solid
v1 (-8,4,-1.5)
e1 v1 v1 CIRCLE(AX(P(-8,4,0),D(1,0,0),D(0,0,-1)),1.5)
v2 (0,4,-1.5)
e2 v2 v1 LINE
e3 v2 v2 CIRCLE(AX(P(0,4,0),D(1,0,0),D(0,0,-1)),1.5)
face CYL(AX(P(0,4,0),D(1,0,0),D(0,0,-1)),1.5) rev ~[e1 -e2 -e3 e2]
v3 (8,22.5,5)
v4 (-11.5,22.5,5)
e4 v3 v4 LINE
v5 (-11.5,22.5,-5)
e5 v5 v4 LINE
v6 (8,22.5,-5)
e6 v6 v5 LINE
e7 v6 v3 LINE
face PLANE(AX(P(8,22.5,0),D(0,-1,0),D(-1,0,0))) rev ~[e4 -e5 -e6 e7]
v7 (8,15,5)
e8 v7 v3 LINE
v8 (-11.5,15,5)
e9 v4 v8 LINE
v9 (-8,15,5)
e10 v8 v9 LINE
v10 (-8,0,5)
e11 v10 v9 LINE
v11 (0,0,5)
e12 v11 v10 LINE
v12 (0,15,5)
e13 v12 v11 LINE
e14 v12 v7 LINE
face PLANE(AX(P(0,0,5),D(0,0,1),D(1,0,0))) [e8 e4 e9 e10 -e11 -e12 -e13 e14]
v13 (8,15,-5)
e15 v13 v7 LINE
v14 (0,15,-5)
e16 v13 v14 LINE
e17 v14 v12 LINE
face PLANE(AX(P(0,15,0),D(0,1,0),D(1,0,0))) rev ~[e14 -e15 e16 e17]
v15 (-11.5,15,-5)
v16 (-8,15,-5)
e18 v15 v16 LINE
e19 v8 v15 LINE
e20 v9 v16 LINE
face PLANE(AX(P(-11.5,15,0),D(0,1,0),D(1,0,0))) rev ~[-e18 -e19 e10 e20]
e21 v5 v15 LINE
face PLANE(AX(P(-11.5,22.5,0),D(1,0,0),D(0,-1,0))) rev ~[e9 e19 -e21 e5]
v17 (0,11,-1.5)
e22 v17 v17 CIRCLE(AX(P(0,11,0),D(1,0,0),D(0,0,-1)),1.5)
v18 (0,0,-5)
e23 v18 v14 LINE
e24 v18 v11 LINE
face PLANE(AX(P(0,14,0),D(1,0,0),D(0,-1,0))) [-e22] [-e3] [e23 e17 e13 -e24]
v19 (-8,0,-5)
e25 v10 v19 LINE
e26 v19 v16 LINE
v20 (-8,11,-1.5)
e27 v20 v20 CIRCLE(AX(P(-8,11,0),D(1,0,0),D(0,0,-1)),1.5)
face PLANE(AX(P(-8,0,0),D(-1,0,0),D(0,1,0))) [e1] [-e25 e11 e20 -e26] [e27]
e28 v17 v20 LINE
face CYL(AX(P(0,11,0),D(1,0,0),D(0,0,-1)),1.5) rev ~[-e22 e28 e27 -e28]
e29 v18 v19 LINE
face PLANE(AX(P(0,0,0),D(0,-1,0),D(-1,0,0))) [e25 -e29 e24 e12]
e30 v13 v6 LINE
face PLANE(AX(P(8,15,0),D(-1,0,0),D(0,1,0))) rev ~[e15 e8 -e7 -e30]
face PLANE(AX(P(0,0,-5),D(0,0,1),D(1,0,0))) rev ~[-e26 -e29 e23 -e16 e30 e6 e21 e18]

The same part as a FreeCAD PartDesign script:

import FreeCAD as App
import Part
import Sketcher

V = App.Vector

doc = App.newDocument("Part")
body = doc.addObject("PartDesign::Body", "Body")

# Sketch on XY plane
sketch1 = body.newObject("Sketcher::SketchObject", "Sketch")
sketch1.AttachmentSupport = (doc.getObject("XY_Plane"), [""])
sketch1.MapMode = "FlatFace"
sketch1.addGeometry([
    Part.LineSegment(V(-8, 0, 0), V(0, 0, 0)),  # 0
    Part.LineSegment(V(0, 0, 0), V(0, 15, 0)),  # 1
    Part.LineSegment(V(0, 15, 0), V(8, 15, 0)),  # 2
    Part.LineSegment(V(8, 15, 0), V(8, 22.5, 0)),  # 3
    Part.LineSegment(V(8, 22.5, 0), V(-11.5, 22.5, 0)),  # 4
    Part.LineSegment(V(-11.5, 22.5, 0), V(-11.5, 15, 0)),  # 5
    Part.LineSegment(V(-11.5, 15, 0), V(-8, 15, 0)),  # 6
    Part.LineSegment(V(-8, 15, 0), V(-8, 0, 0)),  # 7
], False)
sketch1.addConstraint([
    Sketcher.Constraint("Coincident", 0, 2, 1, 1),
    Sketcher.Constraint("Coincident", 1, 2, 2, 1),
    Sketcher.Constraint("Coincident", 2, 2, 3, 1),
    Sketcher.Constraint("Coincident", 3, 2, 4, 1),
    Sketcher.Constraint("Coincident", 4, 2, 5, 1),
    Sketcher.Constraint("Coincident", 5, 2, 6, 1),
    Sketcher.Constraint("Coincident", 6, 2, 7, 1),
    Sketcher.Constraint("Coincident", 7, 2, 0, 1),
    Sketcher.Constraint("Horizontal", 0),
    Sketcher.Constraint("Vertical", 1),
    Sketcher.Constraint("Horizontal", 2),
    Sketcher.Constraint("Vertical", 3),
    Sketcher.Constraint("Horizontal", 4),
    Sketcher.Constraint("Vertical", 5),
    Sketcher.Constraint("Horizontal", 6),
    Sketcher.Constraint("Vertical", 7),
    Sketcher.Constraint("Coincident", 0, 2, -1, 1),
    Sketcher.Constraint("Symmetric", 2, 2, 6, 2, -2),
    Sketcher.Constraint("DistanceX", 0, 1, 0, 2, 8.0),
    Sketcher.Constraint("DistanceY", 1, 1, 1, 2, 15.0),
    Sketcher.Constraint("DistanceX", 4, 2, 4, 1, 19.5),
    Sketcher.Constraint("DistanceY", 3, 1, 3, 2, 7.5),
])
pad1 = body.newObject("PartDesign::Pad", "Pad")
pad1.Profile = sketch1
pad1.Length = 10
pad1.Midplane = True

# Sketch on YZ plane
sketch2 = body.newObject("Sketcher::SketchObject", "Sketch001")
sketch2.AttachmentSupport = (doc.getObject("YZ_Plane"), [""])
sketch2.MapMode = "FlatFace"
sketch2.addGeometry([
    Part.Circle(V(4, 0, 0), V(0, 0, 1), 1.5),
    Part.Circle(V(11, 0, 0), V(0, 0, 1), 1.5),
], False)
sketch2.addConstraint([
    Sketcher.Constraint("Equal", 0, 1),
    Sketcher.Constraint("PointOnObject", 0, 3, -1),
    Sketcher.Constraint("PointOnObject", 1, 3, -1),
    Sketcher.Constraint("Diameter", 0, 3.0),
    Sketcher.Constraint("DistanceX", -1, 1, 0, 3, 4.0),
    Sketcher.Constraint("DistanceX", 0, 3, 1, 3, 7.0),
])
pocket1 = body.newObject("PartDesign::Pocket", "Pocket")
pocket1.Profile = sketch2
pocket1.Type = "ThroughAll"

doc.recompute()
